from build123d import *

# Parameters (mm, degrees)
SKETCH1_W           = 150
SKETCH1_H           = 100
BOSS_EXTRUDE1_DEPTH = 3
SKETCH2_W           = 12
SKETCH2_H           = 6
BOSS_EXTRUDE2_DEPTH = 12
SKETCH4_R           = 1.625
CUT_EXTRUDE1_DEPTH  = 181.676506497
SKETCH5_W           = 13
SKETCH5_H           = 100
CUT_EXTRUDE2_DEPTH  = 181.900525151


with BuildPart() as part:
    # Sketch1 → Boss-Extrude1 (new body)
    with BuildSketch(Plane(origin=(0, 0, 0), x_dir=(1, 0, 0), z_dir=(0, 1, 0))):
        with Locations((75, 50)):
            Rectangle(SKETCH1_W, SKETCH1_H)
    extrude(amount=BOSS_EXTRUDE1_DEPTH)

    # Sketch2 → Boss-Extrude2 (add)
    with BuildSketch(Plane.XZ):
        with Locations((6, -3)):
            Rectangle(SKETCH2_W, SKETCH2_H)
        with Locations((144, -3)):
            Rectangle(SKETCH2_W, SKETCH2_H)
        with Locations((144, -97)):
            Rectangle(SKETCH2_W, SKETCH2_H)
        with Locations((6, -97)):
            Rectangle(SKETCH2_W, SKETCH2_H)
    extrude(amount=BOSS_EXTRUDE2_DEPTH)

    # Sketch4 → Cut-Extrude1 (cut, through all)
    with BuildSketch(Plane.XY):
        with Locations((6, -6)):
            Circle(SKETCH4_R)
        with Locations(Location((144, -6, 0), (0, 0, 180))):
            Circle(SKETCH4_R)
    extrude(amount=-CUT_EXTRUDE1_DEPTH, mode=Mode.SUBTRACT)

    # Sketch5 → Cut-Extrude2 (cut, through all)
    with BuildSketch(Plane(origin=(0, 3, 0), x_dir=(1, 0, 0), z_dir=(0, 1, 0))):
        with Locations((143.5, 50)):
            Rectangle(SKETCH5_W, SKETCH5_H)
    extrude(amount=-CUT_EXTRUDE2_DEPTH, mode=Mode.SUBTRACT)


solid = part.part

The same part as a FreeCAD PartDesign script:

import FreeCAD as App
import Part
import Sketcher
from FreeCAD import Vector
Q = App.Units.Quantity

doc = App.newDocument("Part")
body = doc.addObject("PartDesign::Body", "Body")

# Sketch on XZ plane
sketch1 = body.newObject("Sketcher::SketchObject", "Sketch")
sketch1.AttachmentSupport = (doc.getObject("XZ_Plane"), [""])
sketch1.MapMode = "FlatFace"
sketch1.addGeometry([
    Part.LineSegment(Vector(0, -100, 0), Vector(0, 0, 0)),
    Part.LineSegment(Vector(0, 0, 0), Vector(150, 0, 0)),
    Part.LineSegment(Vector(150, 0, 0), Vector(150, -100, 0)),
    Part.LineSegment(Vector(150, -100, 0), Vector(0, -100, 0)),
], False)
sketch1.addConstraint([
    Sketcher.Constraint("Coincident", 0, 2, 1, 1),
    Sketcher.Constraint("Coincident", 1, 2, 2, 1),
    Sketcher.Constraint("Coincident", 2, 2, 3, 1),
    Sketcher.Constraint("Coincident", 3, 2, 0, 1),
    Sketcher.Constraint("Vertical", 0),
    Sketcher.Constraint("Horizontal", 1),
    Sketcher.Constraint("Vertical", 2),
    Sketcher.Constraint("Horizontal", 3),
    Sketcher.Constraint("Coincident", 0, 2, -1, 1),
    Sketcher.Constraint("DistanceX", 1, 1, 1, 2, Q("150 mm")),
    Sketcher.Constraint("DistanceY", 0, 1, 0, 2, Q("100 mm")),
])
pad1 = body.newObject("PartDesign::Pad", "Pad")
pad1.Profile = sketch1
pad1.Length = 3
pad1.Reversed = True

# Sketch on XZ plane
sketch2 = body.newObject("Sketcher::SketchObject", "Sketch001")
sketch2.AttachmentSupport = (doc.getObject("XZ_Plane"), [""])
sketch2.MapMode = "FlatFace"
sketch2.addGeometry([
    Part.LineSegment(Vector(0, 0, 0), Vector(0, -6, 0)),  # 0
    Part.LineSegment(Vector(0, -6, 0), Vector(12, -6, 0)),  # 1
    Part.LineSegment(Vector(12, -6, 0), Vector(12, 0, 0)),  # 2
    Part.LineSegment(Vector(12, 0, 0), Vector(0, 0, 0)),  # 3
    Part.LineSegment(Vector(138, 0, 0), Vector(138, -6, 0)),  # 4
    Part.LineSegment(Vector(138, -6, 0), Vector(150, -6, 0)),  # 5
    Part.LineSegment(Vector(150, -6, 0), Vector(150, 0, 0)),  # 6
    Part.LineSegment(Vector(150, 0, 0), Vector(138, 0, 0)),  # 7
    Part.LineSegment(Vector(138, -94, 0), Vector(138, -100, 0)),  # 8
    Part.LineSegment(Vector(138, -100, 0), Vector(150, -100, 0)),  # 9
    Part.LineSegment(Vector(150, -100, 0), Vector(150, -94, 0)),  # 10
    Part.LineSegment(Vector(150, -94, 0), Vector(138, -94, 0)),  # 11
    Part.LineSegment(Vector(0, -94, 0), Vector(0, -100, 0)),  # 12
    Part.LineSegment(Vector(0, -100, 0), Vector(12, -100, 0)),  # 13
    Part.LineSegment(Vector(12, -100, 0), Vector(12, -94, 0)),  # 14
    Part.LineSegment(Vector(12, -94, 0), Vector(0, -94, 0)),  # 15
], False)
sketch2.addConstraint([
    Sketcher.Constraint("Coincident", 0, 2, 1, 1),
    Sketcher.Constraint("Coincident", 1, 2, 2, 1),
    Sketcher.Constraint("Coincident", 2, 2, 3, 1),
    Sketcher.Constraint("Coincident", 3, 2, 0, 1),
    Sketcher.Constraint("Coincident", 4, 2, 5, 1),
    Sketcher.Constraint("Coincident", 5, 2, 6, 1),
    Sketcher.Constraint("Coincident", 6, 2, 7, 1),
    Sketcher.Constraint("Coincident", 7, 2, 4, 1),
    Sketcher.Constraint("Coincident", 8, 2, 9, 1),
    Sketcher.Constraint("Coincident", 9, 2, 10, 1),
    Sketcher.Constraint("Coincident", 10, 2, 11, 1),
    Sketcher.Constraint("Coincident", 11, 2, 8, 1),
    Sketcher.Constraint("Coincident", 12, 2, 13, 1),
    Sketcher.Constraint("Coincident", 13, 2, 14, 1),
    Sketcher.Constraint("Coincident", 14, 2, 15, 1),
    Sketcher.Constraint("Coincident", 15, 2, 12, 1),
    Sketcher.Constraint("Vertical", 0),
    Sketcher.Constraint("Horizontal", 1),
    Sketcher.Constraint("Vertical", 2),
    Sketcher.Constraint("Horizontal", 3),
    Sketcher.Constraint("Vertical", 4),
    Sketcher.Constraint("Horizontal", 5),
    Sketcher.Constraint("Vertical", 6),
    Sketcher.Constraint("Horizontal", 7),
    Sketcher.Constraint("Vertical", 8),
    Sketcher.Constraint("Horizontal", 9),
    Sketcher.Constraint("Vertical", 10),
    Sketcher.Constraint("Horizontal", 11),
    Sketcher.Constraint("Vertical", 12),
    Sketcher.Constraint("Horizontal", 13),
    Sketcher.Constraint("Vertical", 14),
    Sketcher.Constraint("Horizontal", 15),
    Sketcher.Constraint("Coincident", 3, 2, -1, 1),
    Sketcher.Constraint("PointOnObject", 6, 2, -1),
    Sketcher.Constraint("PointOnObject", 12, 2, -2),
    Sketcher.Constraint("Horizontal", 1, 2, 4, 2),
    Sketcher.Constraint("Horizontal", 9, 2, 12, 2),
    Sketcher.Constraint("Horizontal", 11, 2, 14, 2),
    Sketcher.Constraint("Vertical", 7, 2, 8, 2),
    Sketcher.Constraint("Vertical", 6, 2, 9, 2),
    Sketcher.Constraint("Vertical", 2, 2, 13, 2),
    Sketcher.Constraint("Equal", 3, 5),
    Sketcher.Constraint("Equal", 6, 8),
    Sketcher.Constraint("DistanceX", 1, 1, 1, 2, Q("12 mm")),
    Sketcher.Constraint("DistanceY", 0, 2, 0, 1, Q("6 mm")),
    Sketcher.Constraint("DistanceX", -1, 1, 4, 2, Q("138 mm")),
    Sketcher.Constraint("DistanceY", 8, 2, -1, 1, Q("100 mm")),
])
pad2 = body.newObject("PartDesign::Pad", "Pad001")
pad2.Profile = sketch2
pad2.Length = 12

# Sketch on XY plane
sketch3 = body.newObject("Sketcher::SketchObject", "Sketch002")
sketch3.AttachmentSupport = (doc.getObject("XY_Plane"), [""])
sketch3.MapMode = "FlatFace"
sketch3.addGeometry([
    Part.Circle(Vector(6, -6, 0), Vector(0, 0, 1), 1.6),
    Part.Circle(Vector(144, -6, 0), Vector(0, 0, 1), 1.6),
], False)
sketch3.addConstraint([
    Sketcher.Constraint("Equal", 0, 1),
    Sketcher.Constraint("Horizontal", 0, 3, 1, 3),
    Sketcher.Constraint("Diameter", 0, Q("3.25 mm")),
    Sketcher.Constraint("DistanceX", -1, 1, 0, 3, Q("6 mm")),
    Sketcher.Constraint("DistanceY", 0, 3, -1, 1, Q("6 mm")),
    Sketcher.Constraint("DistanceX", -1, 1, 1, 3, Q("144 mm")),
])
pocket1 = body.newObject("PartDesign::Pocket", "Pocket")
pocket1.Profile = sketch3
pocket1.Type = "ThroughAll"

# Sketch on XZ plane
sketch4 = body.newObject("Sketcher::SketchObject", "Sketch003")
sketch4.AttachmentSupport = (doc.getObject("XZ_Plane"), [""])
sketch4.MapMode = "FlatFace"
sketch4.AttachmentOffset = App.Placement(Vector(0, 0, -3), App.Rotation())
sketch4.addGeometry([
    Part.LineSegment(Vector(137, -100, 0), Vector(137, 0, 0)),
    Part.LineSegment(Vector(137, 0, 0), Vector(150, 0, 0)),
    Part.LineSegment(Vector(150, 0, 0), Vector(150, -100, 0)),
    Part.LineSegment(Vector(150, -100, 0), Vector(137, -100, 0)),
], False)
sketch4.addConstraint([
    Sketcher.Constraint("Coincident", 0, 2, 1, 1),
    Sketcher.Constraint("Coincident", 1, 2, 2, 1),
    Sketcher.Constraint("Coincident", 2, 2, 3, 1),
    Sketcher.Constraint("Coincident", 3, 2, 0, 1),
    Sketcher.Constraint("Vertical", 0),
    Sketcher.Constraint("Horizontal", 1),
    Sketcher.Constraint("Vertical", 2),
    Sketcher.Constraint("Horizontal", 3),
    Sketcher.Constraint("PointOnObject", 0, 2, -1),
    Sketcher.Constraint("DistanceX", 1, 1, 1, 2, Q("13 mm")),
    Sketcher.Constraint("DistanceY", 0, 1, 0, 2, Q("100 mm")),
    Sketcher.Constraint("DistanceX", -1, 1, 0, 2, Q("137 mm")),
])
pocket2 = body.newObject("PartDesign::Pocket", "Pocket001")
pocket2.Profile = sketch4
pocket2.Type = "ThroughAll"
pocket2.Reversed = True

doc.recompute()
